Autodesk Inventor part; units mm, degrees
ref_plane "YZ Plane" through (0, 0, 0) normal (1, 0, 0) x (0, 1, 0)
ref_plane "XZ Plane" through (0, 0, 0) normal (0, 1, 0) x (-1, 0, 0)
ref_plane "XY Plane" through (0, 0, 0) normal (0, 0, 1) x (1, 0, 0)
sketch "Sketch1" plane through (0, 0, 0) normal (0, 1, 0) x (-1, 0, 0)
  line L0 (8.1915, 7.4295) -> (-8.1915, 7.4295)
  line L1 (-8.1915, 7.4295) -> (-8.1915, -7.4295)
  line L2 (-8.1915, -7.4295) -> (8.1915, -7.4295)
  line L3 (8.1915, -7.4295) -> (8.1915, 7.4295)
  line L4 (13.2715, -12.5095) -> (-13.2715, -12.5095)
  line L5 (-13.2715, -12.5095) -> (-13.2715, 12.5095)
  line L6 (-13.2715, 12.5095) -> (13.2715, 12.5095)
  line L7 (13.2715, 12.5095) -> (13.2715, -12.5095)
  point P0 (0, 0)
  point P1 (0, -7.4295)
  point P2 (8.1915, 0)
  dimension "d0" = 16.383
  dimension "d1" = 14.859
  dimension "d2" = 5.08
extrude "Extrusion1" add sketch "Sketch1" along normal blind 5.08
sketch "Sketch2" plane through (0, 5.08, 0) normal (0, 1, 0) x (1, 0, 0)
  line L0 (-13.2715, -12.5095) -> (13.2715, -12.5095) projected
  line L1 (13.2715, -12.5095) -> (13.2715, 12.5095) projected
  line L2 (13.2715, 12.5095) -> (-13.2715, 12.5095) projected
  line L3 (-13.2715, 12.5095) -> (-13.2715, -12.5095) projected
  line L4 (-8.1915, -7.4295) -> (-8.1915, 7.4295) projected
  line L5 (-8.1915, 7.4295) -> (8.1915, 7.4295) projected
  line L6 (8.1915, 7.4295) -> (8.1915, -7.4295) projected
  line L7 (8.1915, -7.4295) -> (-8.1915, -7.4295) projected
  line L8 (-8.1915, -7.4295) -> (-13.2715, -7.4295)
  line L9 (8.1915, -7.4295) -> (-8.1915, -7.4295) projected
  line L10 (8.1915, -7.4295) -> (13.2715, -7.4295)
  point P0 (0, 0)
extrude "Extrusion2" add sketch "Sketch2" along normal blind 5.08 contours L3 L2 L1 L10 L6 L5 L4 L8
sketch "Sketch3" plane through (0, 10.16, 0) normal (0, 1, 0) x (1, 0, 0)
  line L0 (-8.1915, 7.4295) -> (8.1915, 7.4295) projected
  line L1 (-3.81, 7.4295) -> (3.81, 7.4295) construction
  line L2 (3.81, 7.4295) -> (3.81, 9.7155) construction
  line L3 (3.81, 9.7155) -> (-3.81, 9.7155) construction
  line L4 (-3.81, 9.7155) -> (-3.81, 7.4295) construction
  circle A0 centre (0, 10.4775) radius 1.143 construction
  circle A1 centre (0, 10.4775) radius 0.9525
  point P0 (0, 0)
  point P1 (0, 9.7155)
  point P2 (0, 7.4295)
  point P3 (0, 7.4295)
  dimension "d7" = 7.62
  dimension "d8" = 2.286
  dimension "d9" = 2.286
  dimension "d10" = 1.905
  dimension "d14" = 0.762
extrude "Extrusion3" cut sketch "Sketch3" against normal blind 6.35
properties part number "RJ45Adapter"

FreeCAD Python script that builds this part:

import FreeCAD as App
import Part
import Sketcher
from FreeCAD import Vector
Q = App.Units.Quantity

doc = App.newDocument("Part")
body = doc.addObject("PartDesign::Body", "Body")

# Sketch on XZ plane
sketch1 = body.newObject("Sketcher::SketchObject", "Sketch")
sketch1.AttachmentSupport = (doc.getObject("XZ_Plane"), [""])
sketch1.MapMode = "FlatFace"
sketch1.addGeometry(Part.LineSegment(Vector(13.2715, -12.5095, 0), Vector(-13.2715, -12.5095, 0)), False)
sketch1.addGeometry(Part.LineSegment(Vector(-13.2715, -12.5095, 0), Vector(-13.2715, 12.5095, 0)), False)
sketch1.addGeometry(Part.LineSegment(Vector(-13.2715, 12.5095, 0), Vector(13.2715, 12.5095, 0)), False)
sketch1.addGeometry(Part.LineSegment(Vector(13.2715, 12.5095, 0), Vector(13.2715, -12.5095, 0)), False)
sketch1.addGeometry(Part.LineSegment(Vector(8.1915, 7.4295, 0), Vector(-8.1915, 7.4295, 0)), False)
sketch1.addGeometry(Part.LineSegment(Vector(-8.1915, 7.4295, 0), Vector(-8.1915, -7.4295, 0)), False)
sketch1.addGeometry(Part.LineSegment(Vector(-8.1915, -7.4295, 0), Vector(8.1915, -7.4295, 0)), False)
sketch1.addGeometry(Part.LineSegment(Vector(8.1915, -7.4295, 0), Vector(8.1915, 7.4295, 0)), False)
sketch1.addConstraint(Sketcher.Constraint("Coincident", 0, 2, 1, 1))
sketch1.addConstraint(Sketcher.Constraint("Coincident", 1, 2, 2, 1))
sketch1.addConstraint(Sketcher.Constraint("Coincident", 2, 2, 3, 1))
sketch1.addConstraint(Sketcher.Constraint("Coincident", 3, 2, 0, 1))
sketch1.addConstraint(Sketcher.Constraint("Coincident", 4, 2, 5, 1))
sketch1.addConstraint(Sketcher.Constraint("Coincident", 5, 2, 6, 1))
sketch1.addConstraint(Sketcher.Constraint("Coincident", 6, 2, 7, 1))
sketch1.addConstraint(Sketcher.Constraint("Coincident", 7, 2, 4, 1))
sketch1.addConstraint(Sketcher.Constraint("Horizontal", 0))
sketch1.addConstraint(Sketcher.Constraint("Vertical", 1))
sketch1.addConstraint(Sketcher.Constraint("Horizontal", 2))
sketch1.addConstraint(Sketcher.Constraint("Vertical", 3))
sketch1.addConstraint(Sketcher.Constraint("Horizontal", 4))
sketch1.addConstraint(Sketcher.Constraint("Vertical", 5))
sketch1.addConstraint(Sketcher.Constraint("Horizontal", 6))
sketch1.addConstraint(Sketcher.Constraint("Vertical", 7))
sketch1.addConstraint(Sketcher.Constraint("Symmetric", 0, 2, 2, 2, -1, 1))
sketch1.addConstraint(Sketcher.Constraint("Symmetric", 4, 2, 6, 2, -1, 1))
sketch1.addConstraint(Sketcher.Constraint("DistanceX", 1, 2, 4, 2, Q("0.2 in")))
sketch1.addConstraint(Sketcher.Constraint("DistanceY", 4, 2, 1, 2, Q("0.2 in")))
sketch1.addConstraint(Sketcher.Constraint("DistanceX", 4, 2, 4, 1, Q("0.645 in")))
sketch1.addConstraint(Sketcher.Constraint("DistanceY", 5, 2, 5, 1, Q("0.585 in")))
pad1 = body.newObject("PartDesign::Pad", "Pad")
pad1.Profile = sketch1
pad1.Length = Q("0.2 in")
pad1.Reversed = True

# Sketch on XZ plane
sketch2 = body.newObject("Sketcher::SketchObject", "Sketch001")
sketch2.AttachmentSupport = (doc.getObject("XZ_Plane"), [""])
sketch2.MapMode = "FlatFace"
sketch2.AttachmentOffset = App.Placement(Vector(0, 0, -0.2 * 25.4), App.Rotation())
sketch2.addGeometry(Part.LineSegment(Vector(-13.2715, -12.5095, 0), Vector(-13.2715, 7.4295, 0)), False)
sketch2.addGeometry(Part.LineSegment(Vector(-13.2715, 7.4295, 0), Vector(-8.1915, 7.4295, 0)), False)
sketch2.addGeometry(Part.LineSegment(Vector(-8.1915, 7.4295, 0), Vector(-8.1915, -7.4295, 0)), False)
sketch2.addGeometry(Part.LineSegment(Vector(-8.1915, -7.4295, 0), Vector(8.1915, -7.4295, 0)), False)
sketch2.addGeometry(Part.LineSegment(Vector(8.1915, -7.4295, 0), Vector(8.1915, 7.4295, 0)), False)
sketch2.addGeometry(Part.LineSegment(Vector(8.1915, 7.4295, 0), Vector(13.2715, 7.4295, 0)), False)
sketch2.addGeometry(Part.LineSegment(Vector(13.2715, 7.4295, 0), Vector(13.2715, -12.5095, 0)), False)
sketch2.addGeometry(Part.LineSegment(Vector(13.2715, -12.5095, 0), Vector(-13.2715, -12.5095, 0)), False)
sketch2.addConstraint(Sketcher.Constraint("Coincident", 0, 2, 1, 1))
sketch2.addConstraint(Sketcher.Constraint("Coincident", 1, 2, 2, 1))
sketch2.addConstraint(Sketcher.Constraint("Coincident", 2, 2, 3, 1))
sketch2.addConstraint(Sketcher.Constraint("Coincident", 3, 2, 4, 1))
sketch2.addConstraint(Sketcher.Constraint("Coincident", 4, 2, 5, 1))
sketch2.addConstraint(Sketcher.Constraint("Coincident", 5, 2, 6, 1))
sketch2.addConstraint(Sketcher.Constraint("Coincident", 6, 2, 7, 1))
sketch2.addConstraint(Sketcher.Constraint("Coincident", 7, 2, 0, 1))
sketch2.addConstraint(Sketcher.Constraint("Vertical", 0))
sketch2.addConstraint(Sketcher.Constraint("Horizontal", 1))
sketch2.addConstraint(Sketcher.Constraint("Vertical", 2))
sketch2.addConstraint(Sketcher.Constraint("Horizontal", 3))
sketch2.addConstraint(Sketcher.Constraint("Vertical", 4))
sketch2.addConstraint(Sketcher.Constraint("Horizontal", 5))
sketch2.addConstraint(Sketcher.Constraint("Vertical", 6))
sketch2.addConstraint(Sketcher.Constraint("Horizontal", 7))
sketch2.addConstraint(Sketcher.Constraint("Symmetric", 1, 2, 3, 2, -1, 1))
sketch2.addConstraint(Sketcher.Constraint("Symmetric", 0, 2, 5, 2, -2))
sketch2.addConstraint(Sketcher.Constraint("DistanceX", 1, 1, 1, 2, Q("0.2 in")))
sketch2.addConstraint(Sketcher.Constraint("DistanceY", 6, 2, 3, 2, Q("0.2 in")))
sketch2.addConstraint(Sketcher.Constraint("DistanceX", 3, 1, 3, 2, Q("0.645 in")))
sketch2.addConstraint(Sketcher.Constraint("DistanceY", 0, 1, 0, 2, Q("0.785 in")))
pad2 = body.newObject("PartDesign::Pad", "Pad001")
pad2.Profile = sketch2
pad2.Length = Q("0.2 in")
pad2.Reversed = True

# Sketch on XZ plane
sketch3 = body.newObject("Sketcher::SketchObject", "Sketch002")
sketch3.AttachmentSupport = (doc.getObject("XZ_Plane"), [""])
sketch3.MapMode = "FlatFace"
sketch3.AttachmentOffset = App.Placement(Vector(0, 0, -0.4 * 25.4), App.Rotation())
sketch3.addGeometry(Part.Circle(Vector(0, -10.4775, 0), Vector(0, 0, 1), 0.9525), False)
sketch3.addConstraint(Sketcher.Constraint("PointOnObject", 0, 3, -2))
sketch3.addConstraint(Sketcher.Constraint("Diameter", 0, Q("0.075 in")))
sketch3.addConstraint(Sketcher.Constraint("DistanceY", 0, 3, -1, 1, Q("0.4125 in")))
pocket1 = body.newObject("PartDesign::Pocket", "Pocket")
pocket1.Profile = sketch3
pocket1.Length = Q("0.25 in")
pocket1.Reversed = True

doc.recompute()
